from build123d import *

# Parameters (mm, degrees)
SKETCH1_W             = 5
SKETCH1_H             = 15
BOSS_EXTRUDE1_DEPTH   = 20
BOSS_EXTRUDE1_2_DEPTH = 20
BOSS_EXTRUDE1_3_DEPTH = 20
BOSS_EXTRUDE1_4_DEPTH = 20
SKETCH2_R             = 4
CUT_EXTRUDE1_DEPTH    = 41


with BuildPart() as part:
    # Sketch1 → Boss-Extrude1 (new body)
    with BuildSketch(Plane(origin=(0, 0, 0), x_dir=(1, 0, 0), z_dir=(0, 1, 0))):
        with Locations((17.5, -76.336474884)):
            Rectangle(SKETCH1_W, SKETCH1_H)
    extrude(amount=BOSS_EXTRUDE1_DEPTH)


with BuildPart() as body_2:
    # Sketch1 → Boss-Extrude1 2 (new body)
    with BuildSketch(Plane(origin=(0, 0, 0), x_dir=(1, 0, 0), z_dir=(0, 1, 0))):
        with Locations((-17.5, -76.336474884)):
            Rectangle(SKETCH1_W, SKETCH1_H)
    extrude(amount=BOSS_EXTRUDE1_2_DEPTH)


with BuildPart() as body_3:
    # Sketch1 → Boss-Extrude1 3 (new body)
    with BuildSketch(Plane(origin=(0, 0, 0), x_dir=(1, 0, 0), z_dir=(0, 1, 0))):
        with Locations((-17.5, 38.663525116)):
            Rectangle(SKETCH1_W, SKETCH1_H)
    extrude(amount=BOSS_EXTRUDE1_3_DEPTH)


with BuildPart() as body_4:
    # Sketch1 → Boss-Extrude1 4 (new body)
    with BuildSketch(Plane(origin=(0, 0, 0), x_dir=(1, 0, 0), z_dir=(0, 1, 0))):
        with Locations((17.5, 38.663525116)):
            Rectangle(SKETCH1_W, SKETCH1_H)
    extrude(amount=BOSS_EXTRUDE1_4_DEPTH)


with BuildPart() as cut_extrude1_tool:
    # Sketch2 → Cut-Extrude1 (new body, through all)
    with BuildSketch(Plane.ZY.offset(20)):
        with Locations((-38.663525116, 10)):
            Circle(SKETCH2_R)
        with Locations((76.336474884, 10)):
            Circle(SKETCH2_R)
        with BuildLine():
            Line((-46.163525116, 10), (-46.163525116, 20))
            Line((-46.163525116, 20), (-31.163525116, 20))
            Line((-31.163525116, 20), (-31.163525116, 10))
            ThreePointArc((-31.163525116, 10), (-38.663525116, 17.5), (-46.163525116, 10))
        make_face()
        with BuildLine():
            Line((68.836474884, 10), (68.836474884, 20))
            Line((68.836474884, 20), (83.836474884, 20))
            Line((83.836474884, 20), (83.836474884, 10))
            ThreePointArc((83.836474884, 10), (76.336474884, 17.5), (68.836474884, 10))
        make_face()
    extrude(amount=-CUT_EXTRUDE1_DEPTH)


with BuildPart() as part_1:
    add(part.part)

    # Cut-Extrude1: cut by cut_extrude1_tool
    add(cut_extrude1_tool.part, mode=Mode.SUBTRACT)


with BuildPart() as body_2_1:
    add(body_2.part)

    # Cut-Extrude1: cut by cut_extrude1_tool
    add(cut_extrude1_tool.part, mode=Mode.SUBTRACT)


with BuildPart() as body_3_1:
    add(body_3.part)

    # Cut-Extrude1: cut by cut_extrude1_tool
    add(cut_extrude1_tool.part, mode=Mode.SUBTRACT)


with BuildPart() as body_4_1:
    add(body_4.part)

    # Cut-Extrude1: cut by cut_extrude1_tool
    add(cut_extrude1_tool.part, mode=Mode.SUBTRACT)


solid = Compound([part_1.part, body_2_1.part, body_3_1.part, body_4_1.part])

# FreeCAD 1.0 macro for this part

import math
import FreeCAD as App
import Part
import Sketcher

V = App.Vector
Q = App.Units.Quantity


def add_polygon(sketch, points):
    """Adds a closed chain of lines whose ends are joined by coincident constraints."""
    first, n = sketch.GeometryCount, len(points)
    for a, b in zip(points, points[1:] + points[:1]):
        sketch.addGeometry(Part.LineSegment(App.Vector(*a, 0), App.Vector(*b, 0)), False)
    for i in range(n):
        sketch.addConstraint(Sketcher.Constraint("Coincident", first + i, 2, first + (i + 1) % n, 1))

doc = App.newDocument("Part")
body = doc.addObject("PartDesign::Body", "Body")

# Sketch on XZ plane
sketch1 = body.newObject("Sketcher::SketchObject", "Sketch")
sketch1.AttachmentSupport = (doc.getObject("XZ_Plane"), [""])
sketch1.MapMode = "FlatFace"
add_polygon(sketch1, [(15, 69), (15, 84), (20, 84), (20, 69)])  # lines 0-3
sketch1.addConstraint([
    Sketcher.Constraint("Vertical", 0),
    Sketcher.Constraint("Horizontal", 1),
    Sketcher.Constraint("Vertical", 2),
    Sketcher.Constraint("Horizontal", 3),
    Sketcher.Constraint("DistanceX", 1, 1, 1, 2, Q("5 mm")),
    Sketcher.Constraint("DistanceY", 0, 1, 0, 2, Q("15 mm")),
    Sketcher.Constraint("DistanceX", -1, 1, 0, 2, Q("15 mm")),
    Sketcher.Constraint("DistanceY", -1, 1, 0, 2, Q("83.836475 mm")),
])
pad1 = body.newObject("PartDesign::Pad", "Pad")
pad1.Profile = sketch1
pad1.Length = 20
pad1.Reversed = True
body2 = doc.addObject("PartDesign::Body", "Body001")

# Sketch on XZ plane
sketch2 = body2.newObject("Sketcher::SketchObject", "Sketch001")
sketch2.AttachmentSupport = (doc.getObject("XZ_Plane001"), [""])
sketch2.MapMode = "FlatFace"
add_polygon(sketch2, [(-20, 69), (-20, 84), (-15, 84), (-15, 69)])  # lines 0-3
sketch2.addConstraint([
    Sketcher.Constraint("Vertical", 0),
    Sketcher.Constraint("Horizontal", 1),
    Sketcher.Constraint("Vertical", 2),
    Sketcher.Constraint("Horizontal", 3),
    Sketcher.Constraint("DistanceX", 1, 1, 1, 2, Q("5 mm")),
    Sketcher.Constraint("DistanceY", 0, 1, 0, 2, Q("15 mm")),
    Sketcher.Constraint("DistanceX", 0, 2, -1, 1, Q("20 mm")),
    Sketcher.Constraint("DistanceY", -1, 1, 0, 2, Q("83.836475 mm")),
])
pad2 = body2.newObject("PartDesign::Pad", "Pad001")
pad2.Profile = sketch2
pad2.Length = 20
pad2.Reversed = True
body3 = doc.addObject("PartDesign::Body", "Body002")

# Sketch on XZ plane
sketch3 = body3.newObject("Sketcher::SketchObject", "Sketch002")
sketch3.AttachmentSupport = (doc.getObject("XZ_Plane002"), [""])
sketch3.MapMode = "FlatFace"
add_polygon(sketch3, [(-20, -46), (-20, -31), (-15, -31), (-15, -46)])  # lines 0-3
sketch3.addConstraint([
    Sketcher.Constraint("Vertical", 0),
    Sketcher.Constraint("Horizontal", 1),
    Sketcher.Constraint("Vertical", 2),
    Sketcher.Constraint("Horizontal", 3),
    Sketcher.Constraint("DistanceX", 1, 1, 1, 2, Q("5 mm")),
    Sketcher.Constraint("DistanceY", 0, 1, 0, 2, Q("15 mm")),
    Sketcher.Constraint("DistanceX", 0, 2, -1, 1, Q("20 mm")),
    Sketcher.Constraint("DistanceY", 0, 2, -1, 1, Q("31.163525 mm")),
])
pad3 = body3.newObject("PartDesign::Pad", "Pad002")
pad3.Profile = sketch3
pad3.Length = 20
pad3.Reversed = True
body4 = doc.addObject("PartDesign::Body", "Body003")

# Sketch on XZ plane
sketch4 = body4.newObject("Sketcher::SketchObject", "Sketch003")
sketch4.AttachmentSupport = (doc.getObject("XZ_Plane003"), [""])
sketch4.MapMode = "FlatFace"
add_polygon(sketch4, [(15, -46), (15, -31), (20, -31), (20, -46)])  # lines 0-3
sketch4.addConstraint([
    Sketcher.Constraint("Vertical", 0),
    Sketcher.Constraint("Horizontal", 1),
    Sketcher.Constraint("Vertical", 2),
    Sketcher.Constraint("Horizontal", 3),
    Sketcher.Constraint("DistanceX", 1, 1, 1, 2, Q("5 mm")),
    Sketcher.Constraint("DistanceY", 0, 1, 0, 2, Q("15 mm")),
    Sketcher.Constraint("DistanceX", -1, 1, 0, 2, Q("15 mm")),
    Sketcher.Constraint("DistanceY", 0, 2, -1, 1, Q("31.163525 mm")),
])
pad4 = body4.newObject("PartDesign::Pad", "Pad003")
pad4.Profile = sketch4
pad4.Length = 20
pad4.Reversed = True
body5 = doc.addObject("PartDesign::Body", "Body004")
body5.AllowCompound = True

# Sketch on YZ plane
sketch5 = body5.newObject("Sketcher::SketchObject", "Sketch004")
sketch5.AttachmentSupport = (doc.getObject("YZ_Plane004"), [""])
sketch5.MapMode = "FlatFace"
sketch5.AttachmentOffset = App.Placement(V(0, 0, -20), App.Rotation())
sketch5.addGeometry([
    Part.Circle(V(10, -38.7, 0), V(0, 0, 1), 4),  # 0
    Part.Circle(V(10, 76.3, 0), V(0, 0, 1), 4),  # 1
    Part.LineSegment(V(20, -46.2, 0), V(10, -46.2, 0)),  # 2
    Part.ArcOfCircle(Part.Circle(V(10, -38.7, 0), V(0, 0, 1), 7.5), math.radians(-90), math.radians(90)),  # 3
    Part.LineSegment(V(10, -31.2, 0), V(20, -31.2, 0)),  # 4
    Part.LineSegment(V(20, -31.2, 0), V(20, -46.2, 0)),  # 5
    Part.LineSegment(V(20, 68.8, 0), V(10, 68.8, 0)),  # 6
    Part.ArcOfCircle(Part.Circle(V(10, 76.3, 0), V(0, 0, 1), 7.5), math.radians(-90), math.radians(90)),  # 7
    Part.LineSegment(V(10, 83.8, 0), V(20, 83.8, 0)),  # 8
    Part.LineSegment(V(20, 83.8, 0), V(20, 68.8, 0)),  # 9
], False)
sketch5.addConstraint([
    Sketcher.Constraint("Tangent", 2, 2, 3, 1),
    Sketcher.Constraint("Tangent", 3, 2, 4, 1),
    Sketcher.Constraint("Coincident", 4, 2, 5, 1),
    Sketcher.Constraint("Coincident", 5, 2, 2, 1),
    Sketcher.Constraint("Tangent", 6, 2, 7, 1),
    Sketcher.Constraint("Tangent", 7, 2, 8, 1),
    Sketcher.Constraint("Coincident", 8, 2, 9, 1),
    Sketcher.Constraint("Coincident", 9, 2, 6, 1),
    Sketcher.Constraint("Horizontal", 2),
    Sketcher.Constraint("Horizontal", 4),
    Sketcher.Constraint("Vertical", 5),
    Sketcher.Constraint("Horizontal", 6),
    Sketcher.Constraint("Horizontal", 8),
    Sketcher.Constraint("Vertical", 9),
    Sketcher.Constraint("Coincident", 3, 3, 0, 3),
    Sketcher.Constraint("Coincident", 7, 3, 1, 3),
    Sketcher.Constraint("Equal", 0, 1),
    Sketcher.Constraint("Equal", 3, 7),
    Sketcher.Constraint("Vertical", 0, 3, 1, 3),
    Sketcher.Constraint("Vertical", 5, 2, 8, 2),
    Sketcher.Constraint("Diameter", 0, Q("8 mm")),
    Sketcher.Constraint("Radius", 3, Q("7.5 mm")),
    Sketcher.Constraint("DistanceX", 2, 2, 2, 1, Q("10 mm")),
    Sketcher.Constraint("DistanceX", -1, 1, 0, 3, Q("10 mm")),
    Sketcher.Constraint("DistanceY", 0, 3, 1, 3, Q("115 mm")),
    Sketcher.Constraint("DistanceY", 0, 3, -1, 1, Q("38.663525 mm")),
])
pad5 = body5.newObject("PartDesign::Pad", "Pad004")
pad5.Profile = sketch5
pad5.Length = 41
doc.recompute()

body6 = doc.addObject("PartDesign::Body", "Body005")
body6.BaseFeature = body5
boolean = body.newObject("PartDesign::Boolean", "Boolean")
boolean.Type = "Cut"
boolean.addObjects([body6])
doc.recompute()

body7 = doc.addObject("PartDesign::Body", "Body006")
body7.BaseFeature = body5
boolean2 = body2.newObject("PartDesign::Boolean", "Boolean001")
boolean2.Type = "Cut"
boolean2.addObjects([body7])
doc.recompute()

body8 = doc.addObject("PartDesign::Body", "Body007")
body8.BaseFeature = body5
boolean3 = body3.newObject("PartDesign::Boolean", "Boolean002")
boolean3.Type = "Cut"
boolean3.addObjects([body8])
doc.recompute()

boolean4 = body4.newObject("PartDesign::Boolean", "Boolean003")
boolean4.Type = "Cut"
boolean4.addObjects([body5])

doc.recompute()
